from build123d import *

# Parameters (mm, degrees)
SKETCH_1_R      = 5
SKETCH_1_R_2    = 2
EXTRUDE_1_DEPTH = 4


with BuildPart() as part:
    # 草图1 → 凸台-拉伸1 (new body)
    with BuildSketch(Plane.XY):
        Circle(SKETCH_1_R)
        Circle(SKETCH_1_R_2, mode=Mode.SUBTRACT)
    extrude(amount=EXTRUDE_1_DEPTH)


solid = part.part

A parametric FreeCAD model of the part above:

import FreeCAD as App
import Part
import Sketcher
from FreeCAD import Vector

doc = App.newDocument("Part")
body = doc.addObject("PartDesign::Body", "Body")

sketch1 = body.newObject("Sketcher::SketchObject", "Sketch")
sketch1.AttachmentSupport = (doc.getObject("XY_Plane"), [""])
sketch1.MapMode = "FlatFace"
sketch1.addGeometry([
    Part.Circle(Vector(0, 0, 0), Vector(0, 0, 1), 5),
    Part.Circle(Vector(0, 0, 0), Vector(0, 0, 1), 2),
], False)
sketch1.addConstraint([
    Sketcher.Constraint("Coincident", 0, 3, -1, 1),
    Sketcher.Constraint("Coincident", 1, 3, -1, 1),
    Sketcher.Constraint("Diameter", 0, 10.0),
    Sketcher.Constraint("Diameter", 1, 4.0),
])
pad1 = body.newObject("PartDesign::Pad", "Pad")
pad1.Profile = sketch1
pad1.Length = 4

doc.recompute()
